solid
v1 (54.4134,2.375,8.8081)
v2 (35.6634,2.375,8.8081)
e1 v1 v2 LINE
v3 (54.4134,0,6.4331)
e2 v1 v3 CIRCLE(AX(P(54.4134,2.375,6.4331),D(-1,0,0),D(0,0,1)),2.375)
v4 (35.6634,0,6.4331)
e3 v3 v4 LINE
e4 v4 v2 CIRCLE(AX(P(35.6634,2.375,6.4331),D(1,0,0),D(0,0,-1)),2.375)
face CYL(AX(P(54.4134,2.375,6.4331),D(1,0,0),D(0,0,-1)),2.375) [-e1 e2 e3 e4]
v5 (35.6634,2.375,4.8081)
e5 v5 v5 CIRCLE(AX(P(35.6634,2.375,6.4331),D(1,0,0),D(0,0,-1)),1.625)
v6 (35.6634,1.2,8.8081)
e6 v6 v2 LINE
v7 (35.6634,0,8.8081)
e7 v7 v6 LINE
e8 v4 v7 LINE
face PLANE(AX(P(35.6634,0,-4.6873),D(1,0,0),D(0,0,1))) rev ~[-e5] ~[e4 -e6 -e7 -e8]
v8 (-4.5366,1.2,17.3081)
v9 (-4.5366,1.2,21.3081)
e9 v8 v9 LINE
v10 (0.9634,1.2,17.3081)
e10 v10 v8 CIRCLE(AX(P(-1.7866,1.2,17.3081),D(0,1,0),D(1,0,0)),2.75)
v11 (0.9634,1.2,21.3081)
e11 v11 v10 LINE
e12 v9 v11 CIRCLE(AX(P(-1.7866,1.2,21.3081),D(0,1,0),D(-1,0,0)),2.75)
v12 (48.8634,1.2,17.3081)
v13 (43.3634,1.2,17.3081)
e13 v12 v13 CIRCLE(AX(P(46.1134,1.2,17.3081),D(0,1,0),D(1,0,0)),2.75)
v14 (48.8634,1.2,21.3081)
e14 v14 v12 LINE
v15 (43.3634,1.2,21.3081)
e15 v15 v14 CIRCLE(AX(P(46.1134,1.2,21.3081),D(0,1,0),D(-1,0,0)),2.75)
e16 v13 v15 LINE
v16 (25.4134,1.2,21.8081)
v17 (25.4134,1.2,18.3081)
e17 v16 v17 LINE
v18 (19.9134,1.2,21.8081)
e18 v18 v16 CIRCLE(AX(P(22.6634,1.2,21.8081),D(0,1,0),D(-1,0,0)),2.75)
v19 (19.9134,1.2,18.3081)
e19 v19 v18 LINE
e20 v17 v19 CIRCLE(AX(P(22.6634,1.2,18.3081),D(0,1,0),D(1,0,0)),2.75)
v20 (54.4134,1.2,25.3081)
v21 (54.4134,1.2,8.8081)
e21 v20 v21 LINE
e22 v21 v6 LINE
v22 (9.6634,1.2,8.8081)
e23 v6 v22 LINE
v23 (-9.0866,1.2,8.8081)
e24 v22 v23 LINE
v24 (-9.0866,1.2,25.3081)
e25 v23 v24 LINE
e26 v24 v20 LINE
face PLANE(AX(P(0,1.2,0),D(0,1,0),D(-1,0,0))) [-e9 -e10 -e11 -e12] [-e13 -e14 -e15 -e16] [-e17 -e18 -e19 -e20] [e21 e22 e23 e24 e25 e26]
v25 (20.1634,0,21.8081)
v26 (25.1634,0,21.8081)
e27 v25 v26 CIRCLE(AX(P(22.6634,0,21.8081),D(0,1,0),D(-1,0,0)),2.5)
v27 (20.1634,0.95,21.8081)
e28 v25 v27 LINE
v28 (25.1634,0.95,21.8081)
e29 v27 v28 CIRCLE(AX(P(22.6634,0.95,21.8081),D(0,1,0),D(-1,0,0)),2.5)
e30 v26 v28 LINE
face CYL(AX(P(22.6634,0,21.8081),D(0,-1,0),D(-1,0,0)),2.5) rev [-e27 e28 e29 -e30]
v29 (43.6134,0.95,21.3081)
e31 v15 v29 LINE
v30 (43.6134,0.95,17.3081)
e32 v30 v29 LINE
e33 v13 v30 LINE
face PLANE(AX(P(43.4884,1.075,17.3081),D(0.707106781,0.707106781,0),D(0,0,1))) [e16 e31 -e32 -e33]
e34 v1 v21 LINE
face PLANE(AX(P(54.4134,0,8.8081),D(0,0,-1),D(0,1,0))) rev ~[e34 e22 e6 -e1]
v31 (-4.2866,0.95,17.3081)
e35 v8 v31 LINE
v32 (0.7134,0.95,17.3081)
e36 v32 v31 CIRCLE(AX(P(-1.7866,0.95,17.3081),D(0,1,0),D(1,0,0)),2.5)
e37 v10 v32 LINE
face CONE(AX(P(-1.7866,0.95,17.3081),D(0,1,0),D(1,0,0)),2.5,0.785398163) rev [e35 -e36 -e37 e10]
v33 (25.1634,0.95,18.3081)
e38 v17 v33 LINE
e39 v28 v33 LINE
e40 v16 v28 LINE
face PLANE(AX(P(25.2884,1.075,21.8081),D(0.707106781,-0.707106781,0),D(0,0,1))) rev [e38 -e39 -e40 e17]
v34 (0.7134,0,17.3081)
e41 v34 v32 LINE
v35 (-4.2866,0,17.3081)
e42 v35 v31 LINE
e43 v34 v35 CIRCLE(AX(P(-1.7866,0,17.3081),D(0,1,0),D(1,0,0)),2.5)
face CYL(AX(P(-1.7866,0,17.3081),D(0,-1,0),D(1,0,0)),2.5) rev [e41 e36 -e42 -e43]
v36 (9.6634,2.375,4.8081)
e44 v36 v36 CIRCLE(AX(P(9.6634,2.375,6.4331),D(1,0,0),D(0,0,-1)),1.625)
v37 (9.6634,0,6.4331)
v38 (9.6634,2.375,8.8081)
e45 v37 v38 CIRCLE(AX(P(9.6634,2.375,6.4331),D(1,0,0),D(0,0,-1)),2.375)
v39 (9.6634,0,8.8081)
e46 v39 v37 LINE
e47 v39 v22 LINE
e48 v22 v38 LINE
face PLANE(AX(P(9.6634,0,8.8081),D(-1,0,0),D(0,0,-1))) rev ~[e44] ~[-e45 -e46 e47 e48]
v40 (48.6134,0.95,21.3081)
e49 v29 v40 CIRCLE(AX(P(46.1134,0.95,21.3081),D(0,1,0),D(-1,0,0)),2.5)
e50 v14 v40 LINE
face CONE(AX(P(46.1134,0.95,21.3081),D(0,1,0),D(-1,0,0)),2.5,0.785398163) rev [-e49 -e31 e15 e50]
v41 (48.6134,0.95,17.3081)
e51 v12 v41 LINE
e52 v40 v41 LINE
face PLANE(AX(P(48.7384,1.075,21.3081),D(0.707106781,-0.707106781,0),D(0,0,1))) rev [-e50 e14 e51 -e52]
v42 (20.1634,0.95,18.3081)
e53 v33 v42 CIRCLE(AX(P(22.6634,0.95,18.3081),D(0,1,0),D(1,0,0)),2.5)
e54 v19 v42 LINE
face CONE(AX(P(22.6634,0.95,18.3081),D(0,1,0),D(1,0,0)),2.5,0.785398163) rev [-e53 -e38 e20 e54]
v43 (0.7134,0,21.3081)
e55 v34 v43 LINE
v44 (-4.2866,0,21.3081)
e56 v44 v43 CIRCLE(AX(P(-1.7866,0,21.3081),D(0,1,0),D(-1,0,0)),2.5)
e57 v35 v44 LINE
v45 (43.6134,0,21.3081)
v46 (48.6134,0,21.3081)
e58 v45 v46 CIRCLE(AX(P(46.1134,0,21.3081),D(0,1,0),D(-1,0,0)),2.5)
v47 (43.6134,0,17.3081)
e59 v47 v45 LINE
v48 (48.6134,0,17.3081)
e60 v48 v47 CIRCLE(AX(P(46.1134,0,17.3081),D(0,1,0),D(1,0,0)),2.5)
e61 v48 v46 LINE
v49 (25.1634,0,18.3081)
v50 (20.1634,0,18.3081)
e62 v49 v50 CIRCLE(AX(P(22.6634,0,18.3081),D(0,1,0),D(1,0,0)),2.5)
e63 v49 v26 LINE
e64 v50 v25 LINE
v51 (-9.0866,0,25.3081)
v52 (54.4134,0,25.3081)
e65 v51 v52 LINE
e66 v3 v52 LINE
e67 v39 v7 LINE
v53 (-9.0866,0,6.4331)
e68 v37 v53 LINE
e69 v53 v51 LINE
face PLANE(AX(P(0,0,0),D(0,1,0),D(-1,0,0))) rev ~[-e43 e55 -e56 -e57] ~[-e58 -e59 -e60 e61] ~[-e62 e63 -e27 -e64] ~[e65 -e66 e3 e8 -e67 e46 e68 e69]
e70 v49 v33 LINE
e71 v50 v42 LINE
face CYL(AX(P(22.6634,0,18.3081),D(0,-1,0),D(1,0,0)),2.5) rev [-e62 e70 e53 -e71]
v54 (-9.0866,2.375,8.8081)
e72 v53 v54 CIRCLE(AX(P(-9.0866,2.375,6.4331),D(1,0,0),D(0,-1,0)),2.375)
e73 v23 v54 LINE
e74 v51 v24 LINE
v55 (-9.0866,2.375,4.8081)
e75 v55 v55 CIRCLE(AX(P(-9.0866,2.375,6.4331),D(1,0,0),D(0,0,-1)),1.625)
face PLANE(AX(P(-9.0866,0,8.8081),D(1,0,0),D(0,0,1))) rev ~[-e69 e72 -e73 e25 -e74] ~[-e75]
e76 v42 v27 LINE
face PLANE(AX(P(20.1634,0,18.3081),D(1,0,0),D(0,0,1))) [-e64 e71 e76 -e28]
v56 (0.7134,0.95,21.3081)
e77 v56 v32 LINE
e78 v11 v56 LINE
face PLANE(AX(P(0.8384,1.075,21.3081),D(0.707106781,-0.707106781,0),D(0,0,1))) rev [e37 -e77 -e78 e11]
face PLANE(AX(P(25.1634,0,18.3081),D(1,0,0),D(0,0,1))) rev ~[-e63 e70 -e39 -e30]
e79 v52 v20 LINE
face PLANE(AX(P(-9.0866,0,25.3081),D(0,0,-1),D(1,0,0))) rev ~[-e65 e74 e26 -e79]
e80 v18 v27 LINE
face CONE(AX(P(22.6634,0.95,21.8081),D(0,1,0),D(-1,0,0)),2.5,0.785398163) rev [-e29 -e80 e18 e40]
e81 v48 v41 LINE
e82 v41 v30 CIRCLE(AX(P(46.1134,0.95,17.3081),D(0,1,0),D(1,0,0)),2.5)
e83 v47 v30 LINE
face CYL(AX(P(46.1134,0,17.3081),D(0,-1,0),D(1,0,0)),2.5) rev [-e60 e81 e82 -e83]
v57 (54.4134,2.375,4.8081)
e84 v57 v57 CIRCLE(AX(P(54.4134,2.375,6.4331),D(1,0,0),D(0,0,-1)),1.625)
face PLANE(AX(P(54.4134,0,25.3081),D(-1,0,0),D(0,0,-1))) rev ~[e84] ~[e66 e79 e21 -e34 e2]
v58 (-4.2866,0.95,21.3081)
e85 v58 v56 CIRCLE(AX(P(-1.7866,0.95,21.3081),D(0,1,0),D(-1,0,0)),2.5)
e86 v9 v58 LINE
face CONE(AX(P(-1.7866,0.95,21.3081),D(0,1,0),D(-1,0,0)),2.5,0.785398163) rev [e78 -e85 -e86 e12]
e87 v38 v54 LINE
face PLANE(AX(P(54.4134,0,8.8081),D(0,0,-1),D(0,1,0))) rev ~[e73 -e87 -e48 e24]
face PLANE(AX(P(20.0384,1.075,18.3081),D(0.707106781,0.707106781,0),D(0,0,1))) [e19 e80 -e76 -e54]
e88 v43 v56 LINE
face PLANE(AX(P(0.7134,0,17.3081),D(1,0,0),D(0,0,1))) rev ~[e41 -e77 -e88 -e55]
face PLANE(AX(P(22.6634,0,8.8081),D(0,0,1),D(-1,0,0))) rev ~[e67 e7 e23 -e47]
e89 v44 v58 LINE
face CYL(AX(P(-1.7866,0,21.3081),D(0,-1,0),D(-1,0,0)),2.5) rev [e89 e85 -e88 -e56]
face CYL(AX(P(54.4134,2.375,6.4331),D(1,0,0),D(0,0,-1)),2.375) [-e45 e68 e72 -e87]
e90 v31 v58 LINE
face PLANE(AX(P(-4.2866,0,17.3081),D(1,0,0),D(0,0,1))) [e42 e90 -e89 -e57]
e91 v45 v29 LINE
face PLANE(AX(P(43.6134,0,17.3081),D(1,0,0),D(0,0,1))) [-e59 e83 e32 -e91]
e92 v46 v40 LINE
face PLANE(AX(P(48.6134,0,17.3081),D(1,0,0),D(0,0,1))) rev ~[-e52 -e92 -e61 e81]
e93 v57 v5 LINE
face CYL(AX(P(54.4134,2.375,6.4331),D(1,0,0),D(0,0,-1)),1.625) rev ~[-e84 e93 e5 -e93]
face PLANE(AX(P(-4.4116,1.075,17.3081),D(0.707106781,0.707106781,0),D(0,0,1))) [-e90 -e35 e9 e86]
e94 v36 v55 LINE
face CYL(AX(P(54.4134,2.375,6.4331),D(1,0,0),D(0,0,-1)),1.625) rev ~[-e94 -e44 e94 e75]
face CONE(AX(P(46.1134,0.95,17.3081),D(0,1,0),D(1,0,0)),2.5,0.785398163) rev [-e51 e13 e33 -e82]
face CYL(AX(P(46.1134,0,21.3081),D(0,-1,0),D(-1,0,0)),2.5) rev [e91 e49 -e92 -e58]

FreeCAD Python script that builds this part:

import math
import FreeCAD as App
import Part
import Sketcher

V = App.Vector
Q = App.Units.Quantity


def edges_at(feature, points):
    """Names of the edges that pass closest to the given points."""
    edges = feature.Shape.Edges
    near = lambda p: min(range(len(edges)), key=lambda i: edges[i].distToShape(Part.Vertex(*p))[0])
    return sorted({f"Edge{near(p) + 1}" for p in points})

doc = App.newDocument("Part")
params = doc.addObject("Spreadsheet::Sheet", "Params")
for row, (alias, value) in enumerate([
    ("sketch1_radius", "2.5 mm"),
    ("sketch1_height", "4 mm"),
    ("sketch1_width", "63.5 mm"),
    ("sketch1_height2", "16.5 mm"),
    ("sketch1_height3", "3.5 mm"),
    ("pad1_length", "1.2 mm"),
    ("sketch2_diameter", "3.25 mm"),
    ("pad2_length", "63.5 mm"),
    ("sketch3_width", "26 mm"),
    ("pocket1_length", "63.5 mm"),
    ("chamfer_size", "0.25 mm"),
], start=1):
    params.set(f"A{row}", alias)
    params.set(f"B{row}", "=" + value)
    params.setAlias(f"B{row}", alias)

body = doc.addObject("PartDesign::Body", "Body")

# Sketch on XZ plane
sketch1 = body.newObject("Sketcher::SketchObject", "Sketch")
sketch1.AttachmentSupport = (doc.getObject("XZ_Plane"), [""])
sketch1.MapMode = "FlatFace"
sketch1.addGeometry([
    Part.LineSegment(V(-9.0866, 8.8081, 0), V(-9.0866, 25.3081, 0)),  # 0
    Part.LineSegment(V(-9.0866, 25.3081, 0), V(54.4134, 25.3081, 0)),  # 1
    Part.LineSegment(V(54.4134, 25.3081, 0), V(54.4134, 8.8081, 0)),  # 2
    Part.LineSegment(V(54.4134, 8.8081, 0), V(-9.0866, 8.8081, 0)),  # 3
    Part.ArcOfCircle(Part.Circle(V(46.1134, 17.3081, 0), V(0, 0, 1), 2.5), math.radians(180), math.radians(360)),  # 4
    Part.LineSegment(V(48.6134, 17.3081, 0), V(48.6134, 21.3081, 0)),  # 5
    Part.ArcOfCircle(Part.Circle(V(46.1134, 21.3081, 0), V(0, 0, 1), 2.5), math.radians(0), math.radians(180)),  # 6
    Part.LineSegment(V(43.6134, 21.3081, 0), V(43.6134, 17.3081, 0)),  # 7
    Part.ArcOfCircle(Part.Circle(V(22.6634, 18.3081, 0), V(0, 0, 1), 2.5), math.radians(180), math.radians(360)),  # 8
    Part.LineSegment(V(25.1634, 18.3081, 0), V(25.1634, 21.8081, 0)),  # 9
    Part.ArcOfCircle(Part.Circle(V(22.6634, 21.8081, 0), V(0, 0, 1), 2.5), math.radians(0), math.radians(180)),  # 10
    Part.LineSegment(V(20.1634, 21.8081, 0), V(20.1634, 18.3081, 0)),  # 11
    Part.ArcOfCircle(Part.Circle(V(-1.7866, 17.3081, 0), V(0, 0, 1), 2.5), math.radians(180), math.radians(360)),  # 12
    Part.LineSegment(V(0.7134, 17.3081, 0), V(0.7134, 21.3081, 0)),  # 13
    Part.ArcOfCircle(Part.Circle(V(-1.7866, 21.3081, 0), V(0, 0, 1), 2.5), math.radians(0), math.radians(180)),  # 14
    Part.LineSegment(V(-4.2866, 21.3081, 0), V(-4.2866, 17.3081, 0)),  # 15
], False)
sketch1.addConstraint([
    Sketcher.Constraint("Coincident", 0, 2, 1, 1),
    Sketcher.Constraint("Coincident", 1, 2, 2, 1),
    Sketcher.Constraint("Coincident", 2, 2, 3, 1),
    Sketcher.Constraint("Coincident", 3, 2, 0, 1),
    Sketcher.Constraint("Tangent", 4, 2, 5, 1),
    Sketcher.Constraint("Tangent", 5, 2, 6, 1),
    Sketcher.Constraint("Tangent", 6, 2, 7, 1),
    Sketcher.Constraint("Tangent", 7, 2, 4, 1),
    Sketcher.Constraint("Tangent", 8, 2, 9, 1),
    Sketcher.Constraint("Tangent", 9, 2, 10, 1),
    Sketcher.Constraint("Tangent", 10, 2, 11, 1),
    Sketcher.Constraint("Tangent", 11, 2, 8, 1),
    Sketcher.Constraint("Tangent", 12, 2, 13, 1),
    Sketcher.Constraint("Tangent", 13, 2, 14, 1),
    Sketcher.Constraint("Tangent", 14, 2, 15, 1),
    Sketcher.Constraint("Tangent", 15, 2, 12, 1),
    Sketcher.Constraint("Vertical", 0),
    Sketcher.Constraint("Horizontal", 1),
    Sketcher.Constraint("Vertical", 2),
    Sketcher.Constraint("Horizontal", 3),
    Sketcher.Constraint("Vertical", 5),
    Sketcher.Constraint("Vertical", 7),
    Sketcher.Constraint("Vertical", 9),
    Sketcher.Constraint("Vertical", 11),
    Sketcher.Constraint("Vertical", 13),
    Sketcher.Constraint("Vertical", 15),
    Sketcher.Constraint("Equal", 6, 8),
    Sketcher.Constraint("Equal", 10, 12),
    Sketcher.Constraint("Horizontal", 4, 3, 12, 3),
    Sketcher.Constraint("Horizontal", 6, 3, 14, 3),
    Sketcher.Constraint("Radius", 4, Q("2.5 mm")),
    Sketcher.Constraint("DistanceY", 5, 1, 5, 2, Q("4 mm")),
    Sketcher.Constraint("DistanceX", 1, 1, 1, 2, Q("63.5 mm")),
    Sketcher.Constraint("DistanceY", 0, 1, 0, 2, Q("16.5 mm")),
    Sketcher.Constraint("DistanceY", 9, 1, 9, 2, Q("3.5 mm")),
    Sketcher.Constraint("DistanceY", 14, 3, 0, 2, Q("4 mm")),
    Sketcher.Constraint("DistanceY", 8, 3, 0, 2, Q("7 mm")),
    Sketcher.Constraint("DistanceX", 0, 2, 14, 3, Q("7.3 mm")),
    Sketcher.Constraint("DistanceX", 6, 3, 1, 2, Q("8.3 mm")),
    Sketcher.Constraint("DistanceX", 0, 2, 10, 3, Q("31.75 mm")),
    Sketcher.Constraint("DistanceY", -1, 1, 4, 3, Q("17.308 mm")),
    Sketcher.Constraint("DistanceX", -1, 1, 4, 3, Q("46.1134 mm")),
])
sketch1.setExpression("Constraints[30]", "Params.sketch1_radius")
sketch1.setExpression("Constraints[31]", "Params.sketch1_height")
sketch1.setExpression("Constraints[32]", "Params.sketch1_width")
sketch1.setExpression("Constraints[33]", "Params.sketch1_height2")
sketch1.setExpression("Constraints[34]", "Params.sketch1_height3")
pad1 = body.newObject("PartDesign::Pad", "Pad")
pad1.Profile = sketch1
pad1.setExpression("Length", "Params.pad1_length")
pad1.Reversed = True

# Sketch on YZ plane
sketch2 = body.newObject("Sketcher::SketchObject", "Sketch001")
sketch2.AttachmentSupport = (doc.getObject("YZ_Plane"), [""])
sketch2.MapMode = "FlatFace"
sketch2.AttachmentOffset = App.Placement(V(0, 0, 54.4134), App.Rotation())
sketch2.addGeometry([
    Part.ArcOfCircle(Part.Circle(V(2.375, 6.4331, 0), V(0, 0, 1), 2.375), math.radians(180), math.radians(450)),
    Part.LineSegment(V(2.375, 8.8081, 0), V(0, 8.8081, 0)),
    Part.LineSegment(V(0, 8.8081, 0), V(0, 6.4331, 0)),
    Part.Circle(V(2.375, 6.4331, 0), V(0, 0, 1), 1.625),
], False)
sketch2.addConstraint([
    Sketcher.Constraint("Tangent", 0, 2, 1, 1),
    Sketcher.Constraint("Coincident", 1, 2, 2, 1),
    Sketcher.Constraint("Tangent", 2, 2, 0, 1),
    Sketcher.Constraint("Horizontal", 1),
    Sketcher.Constraint("Vertical", 2),
    Sketcher.Constraint("Coincident", 3, 3, 0, 3),
    Sketcher.Constraint("PointOnObject", 1, 2, -2),
    Sketcher.Constraint("Diameter", 3, Q("3.25 mm")),
    Sketcher.Constraint("Radius", 0, Q("2.375 mm")),
    Sketcher.Constraint("DistanceY", -1, 1, 0, 3, Q("6.433 mm")),
])
sketch2.setExpression("Constraints[7]", "Params.sketch2_diameter")
pad2 = body.newObject("PartDesign::Pad", "Pad001")
pad2.Profile = sketch2
pad2.setExpression("Length", "Params.pad2_length")
pad2.Reversed = True

# Sketch on XZ plane
sketch3 = body.newObject("Sketcher::SketchObject", "Sketch002")
sketch3.AttachmentSupport = (doc.getObject("XZ_Plane"), [""])
sketch3.MapMode = "FlatFace"
sketch3.addGeometry([
    Part.LineSegment(V(35.6634, -4.6873, 0), V(35.6634, 8.8081, 0)),
    Part.LineSegment(V(35.6634, 8.8081, 0), V(9.6634, 8.8081, 0)),
    Part.LineSegment(V(9.6634, 8.8081, 0), V(9.6634, -4.6873, 0)),
    Part.LineSegment(V(9.6634, -4.6873, 0), V(35.6634, -4.6873, 0)),
], False)
sketch3.addConstraint([
    Sketcher.Constraint("Coincident", 0, 2, 1, 1),
    Sketcher.Constraint("Coincident", 1, 2, 2, 1),
    Sketcher.Constraint("Coincident", 2, 2, 3, 1),
    Sketcher.Constraint("Coincident", 3, 2, 0, 1),
    Sketcher.Constraint("Vertical", 0),
    Sketcher.Constraint("Horizontal", 1),
    Sketcher.Constraint("Vertical", 2),
    Sketcher.Constraint("Horizontal", 3),
    Sketcher.Constraint("DistanceX", 1, 2, 1, 1, Q("26 mm")),
    Sketcher.Constraint("DistanceY", 0, 1, 0, 2, Q("13.4954 mm")),
    Sketcher.Constraint("DistanceY", -1, 1, 0, 2, Q("8.808 mm")),
    Sketcher.Constraint("DistanceX", -1, 1, 0, 2, Q("35.6634 mm")),
])
sketch3.setExpression("Constraints[8]", "Params.sketch3_width")
pocket1 = body.newObject("PartDesign::Pocket", "Pocket")
pocket1.Profile = sketch3
pocket1.setExpression("Length", "Params.pocket1_length")
doc.recompute()

chamfer = body.newObject("PartDesign::Chamfer", "Chamfer")
chamfer.Base = (pocket1, edges_at(pocket1, [(22.663, 1.2, 15.808), (-1.787, 1.2, 14.808), (46.113, 1.2, 14.808)]))
chamfer.setExpression("Size", "Params.chamfer_size")

doc.recompute()
